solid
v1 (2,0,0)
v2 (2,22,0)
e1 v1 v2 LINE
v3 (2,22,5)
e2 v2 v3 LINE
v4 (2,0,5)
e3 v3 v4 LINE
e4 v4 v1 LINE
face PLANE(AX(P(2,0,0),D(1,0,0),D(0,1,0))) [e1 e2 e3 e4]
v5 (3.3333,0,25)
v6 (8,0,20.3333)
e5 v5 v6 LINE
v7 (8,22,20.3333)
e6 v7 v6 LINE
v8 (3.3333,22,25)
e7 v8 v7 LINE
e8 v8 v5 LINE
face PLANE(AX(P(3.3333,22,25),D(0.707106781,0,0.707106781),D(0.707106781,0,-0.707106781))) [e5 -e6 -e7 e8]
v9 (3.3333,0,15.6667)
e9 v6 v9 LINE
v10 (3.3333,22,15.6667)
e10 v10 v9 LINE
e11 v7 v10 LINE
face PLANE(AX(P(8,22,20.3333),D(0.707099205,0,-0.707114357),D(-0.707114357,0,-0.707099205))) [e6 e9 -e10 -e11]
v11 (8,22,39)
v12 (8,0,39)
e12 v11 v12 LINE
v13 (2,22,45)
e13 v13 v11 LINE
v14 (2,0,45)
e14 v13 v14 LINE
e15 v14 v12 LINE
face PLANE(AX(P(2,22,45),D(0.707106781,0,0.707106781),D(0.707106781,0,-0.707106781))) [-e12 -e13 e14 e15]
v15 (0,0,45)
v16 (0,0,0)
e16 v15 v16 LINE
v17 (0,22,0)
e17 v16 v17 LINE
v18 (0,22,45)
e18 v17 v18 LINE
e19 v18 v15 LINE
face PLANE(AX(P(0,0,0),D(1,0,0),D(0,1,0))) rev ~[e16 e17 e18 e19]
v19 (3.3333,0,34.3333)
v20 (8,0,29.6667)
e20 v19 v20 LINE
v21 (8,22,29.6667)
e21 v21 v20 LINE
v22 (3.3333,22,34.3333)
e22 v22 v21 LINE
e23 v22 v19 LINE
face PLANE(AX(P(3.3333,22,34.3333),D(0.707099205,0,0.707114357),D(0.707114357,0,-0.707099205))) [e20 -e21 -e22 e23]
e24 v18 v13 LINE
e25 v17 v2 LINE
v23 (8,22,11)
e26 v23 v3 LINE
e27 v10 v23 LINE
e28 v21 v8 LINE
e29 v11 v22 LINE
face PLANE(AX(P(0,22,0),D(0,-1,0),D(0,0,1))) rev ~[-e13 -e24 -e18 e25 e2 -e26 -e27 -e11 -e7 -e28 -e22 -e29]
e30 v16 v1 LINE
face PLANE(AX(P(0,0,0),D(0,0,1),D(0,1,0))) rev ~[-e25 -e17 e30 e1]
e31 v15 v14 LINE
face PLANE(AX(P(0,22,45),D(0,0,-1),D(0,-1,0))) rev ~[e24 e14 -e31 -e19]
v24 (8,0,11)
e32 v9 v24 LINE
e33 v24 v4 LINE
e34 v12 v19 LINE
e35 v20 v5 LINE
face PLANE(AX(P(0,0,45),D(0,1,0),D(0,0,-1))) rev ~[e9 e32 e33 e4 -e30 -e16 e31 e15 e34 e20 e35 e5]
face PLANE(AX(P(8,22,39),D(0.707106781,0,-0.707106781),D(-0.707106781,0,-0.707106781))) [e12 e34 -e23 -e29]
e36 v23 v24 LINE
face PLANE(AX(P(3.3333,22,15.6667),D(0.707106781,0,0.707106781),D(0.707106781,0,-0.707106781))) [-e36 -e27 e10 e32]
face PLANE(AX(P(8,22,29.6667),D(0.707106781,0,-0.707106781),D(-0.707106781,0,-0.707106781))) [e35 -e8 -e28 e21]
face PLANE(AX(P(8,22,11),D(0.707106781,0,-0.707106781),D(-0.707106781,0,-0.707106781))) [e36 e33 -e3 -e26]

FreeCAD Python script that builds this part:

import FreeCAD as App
import Part
import Sketcher
Q = App.Units.Quantity

doc = App.newDocument("Part")
body = doc.addObject("PartDesign::Body", "Body")

sketch1 = doc.addObject("Sketcher::SketchObject", "Sketch")
body.addObject(sketch1)
sketch1.AttachmentSupport = (doc.YZ_Plane, [""])
sketch1.MapMode = "FlatFace"
sketch1.addGeometry([
    Part.LineSegment(App.Vector(0, 45, 0), App.Vector(0, 0, 0)),
    Part.LineSegment(App.Vector(0, 0, 0), App.Vector(22, 0, 0)),
    Part.LineSegment(App.Vector(22, 0, 0), App.Vector(22, 45, 0)),
    Part.LineSegment(App.Vector(22, 45, 0), App.Vector(0, 45, 0)),
], False)
sketch1.addConstraint([
    Sketcher.Constraint("Coincident", 0, 2, 1, 1),
    Sketcher.Constraint("Coincident", 1, 2, 2, 1),
    Sketcher.Constraint("Coincident", 2, 2, 3, 1),
    Sketcher.Constraint("Coincident", 3, 2, 0, 1),
    Sketcher.Constraint("Vertical", 0),
    Sketcher.Constraint("Horizontal", 1),
    Sketcher.Constraint("Vertical", 2),
    Sketcher.Constraint("Horizontal", 3),
    Sketcher.Constraint("Coincident", 0, 2, -1, 1),
    Sketcher.Constraint("DistanceX", 1, 1, 1, 2, Q("22 mm")),
    Sketcher.Constraint("DistanceY", 0, 2, 0, 1, Q("45 mm")),
])
pad1 = doc.addObject("PartDesign::Pad", "Pad")
body.addObject(pad1)
pad1.Profile = sketch1
pad1.Length = 2

sketch2 = doc.addObject("Sketcher::SketchObject", "Sketch001")
body.addObject(sketch2)
sketch2.AttachmentSupport = (doc.XZ_Plane, [""])
sketch2.MapMode = "FlatFace"
sketch2.AttachmentOffset = App.Placement(App.Vector(0, 0, -22), App.Rotation())
sketch2.addGeometry([
    Part.LineSegment(App.Vector(2, 5, 0), App.Vector(2, 45, 0)),
    Part.LineSegment(App.Vector(2, 45, 0), App.Vector(8, 39, 0)),
    Part.LineSegment(App.Vector(8, 39, 0), App.Vector(3.3333, 34.3333, 0)),
    Part.LineSegment(App.Vector(3.3333, 34.3333, 0), App.Vector(8, 29.6667, 0)),
    Part.LineSegment(App.Vector(8, 29.6667, 0), App.Vector(3.3333, 25, 0)),
    Part.LineSegment(App.Vector(3.3333, 25, 0), App.Vector(8, 20.3333, 0)),
    Part.LineSegment(App.Vector(8, 20.3333, 0), App.Vector(3.3333, 15.6667, 0)),
    Part.LineSegment(App.Vector(3.3333, 15.6667, 0), App.Vector(8, 11, 0)),
    Part.LineSegment(App.Vector(8, 11, 0), App.Vector(2, 5, 0)),
], False)
sketch2.addConstraint([
    Sketcher.Constraint("Coincident", 0, 2, 1, 1),
    Sketcher.Constraint("Coincident", 1, 2, 2, 1),
    Sketcher.Constraint("Coincident", 2, 2, 3, 1),
    Sketcher.Constraint("Coincident", 3, 2, 4, 1),
    Sketcher.Constraint("Coincident", 4, 2, 5, 1),
    Sketcher.Constraint("Coincident", 5, 2, 6, 1),
    Sketcher.Constraint("Coincident", 6, 2, 7, 1),
    Sketcher.Constraint("Coincident", 7, 2, 8, 1),
    Sketcher.Constraint("Coincident", 8, 2, 0, 1),
    Sketcher.Constraint("Vertical", 0),
    Sketcher.Constraint("Perpendicular", 1, 2),
    Sketcher.Constraint("Perpendicular", 2, 3),
    Sketcher.Constraint("Perpendicular", 3, 4),
    Sketcher.Constraint("Perpendicular", 4, 5),
    Sketcher.Constraint("Perpendicular", 5, 6),
    Sketcher.Constraint("Perpendicular", 6, 7),
    Sketcher.Constraint("Perpendicular", 7, 8),
    Sketcher.Constraint("Vertical", 1, 2, 3, 2),
    Sketcher.Constraint("Vertical", 2, 2, 4, 2),
    Sketcher.Constraint("Vertical", 3, 2, 5, 2),
    Sketcher.Constraint("Vertical", 4, 2, 6, 2),
    Sketcher.Constraint("Vertical", 5, 2, 7, 2),
    Sketcher.Constraint("Equal", 2, 3),
    Sketcher.Constraint("DistanceY", 0, 1, 0, 2, Q("40 mm")),
    Sketcher.Constraint("DistanceX", 0, 2, 1, 2, Q("6 mm")),
    Sketcher.Constraint("DistanceX", -1, 1, 0, 2, Q("2 mm")),
    Sketcher.Constraint("DistanceY", -1, 1, 0, 2, Q("45 mm")),
])
pad2 = doc.addObject("PartDesign::Pad", "Pad001")
body.addObject(pad2)
pad2.Profile = sketch2
pad2.Length = 22

doc.recompute()
